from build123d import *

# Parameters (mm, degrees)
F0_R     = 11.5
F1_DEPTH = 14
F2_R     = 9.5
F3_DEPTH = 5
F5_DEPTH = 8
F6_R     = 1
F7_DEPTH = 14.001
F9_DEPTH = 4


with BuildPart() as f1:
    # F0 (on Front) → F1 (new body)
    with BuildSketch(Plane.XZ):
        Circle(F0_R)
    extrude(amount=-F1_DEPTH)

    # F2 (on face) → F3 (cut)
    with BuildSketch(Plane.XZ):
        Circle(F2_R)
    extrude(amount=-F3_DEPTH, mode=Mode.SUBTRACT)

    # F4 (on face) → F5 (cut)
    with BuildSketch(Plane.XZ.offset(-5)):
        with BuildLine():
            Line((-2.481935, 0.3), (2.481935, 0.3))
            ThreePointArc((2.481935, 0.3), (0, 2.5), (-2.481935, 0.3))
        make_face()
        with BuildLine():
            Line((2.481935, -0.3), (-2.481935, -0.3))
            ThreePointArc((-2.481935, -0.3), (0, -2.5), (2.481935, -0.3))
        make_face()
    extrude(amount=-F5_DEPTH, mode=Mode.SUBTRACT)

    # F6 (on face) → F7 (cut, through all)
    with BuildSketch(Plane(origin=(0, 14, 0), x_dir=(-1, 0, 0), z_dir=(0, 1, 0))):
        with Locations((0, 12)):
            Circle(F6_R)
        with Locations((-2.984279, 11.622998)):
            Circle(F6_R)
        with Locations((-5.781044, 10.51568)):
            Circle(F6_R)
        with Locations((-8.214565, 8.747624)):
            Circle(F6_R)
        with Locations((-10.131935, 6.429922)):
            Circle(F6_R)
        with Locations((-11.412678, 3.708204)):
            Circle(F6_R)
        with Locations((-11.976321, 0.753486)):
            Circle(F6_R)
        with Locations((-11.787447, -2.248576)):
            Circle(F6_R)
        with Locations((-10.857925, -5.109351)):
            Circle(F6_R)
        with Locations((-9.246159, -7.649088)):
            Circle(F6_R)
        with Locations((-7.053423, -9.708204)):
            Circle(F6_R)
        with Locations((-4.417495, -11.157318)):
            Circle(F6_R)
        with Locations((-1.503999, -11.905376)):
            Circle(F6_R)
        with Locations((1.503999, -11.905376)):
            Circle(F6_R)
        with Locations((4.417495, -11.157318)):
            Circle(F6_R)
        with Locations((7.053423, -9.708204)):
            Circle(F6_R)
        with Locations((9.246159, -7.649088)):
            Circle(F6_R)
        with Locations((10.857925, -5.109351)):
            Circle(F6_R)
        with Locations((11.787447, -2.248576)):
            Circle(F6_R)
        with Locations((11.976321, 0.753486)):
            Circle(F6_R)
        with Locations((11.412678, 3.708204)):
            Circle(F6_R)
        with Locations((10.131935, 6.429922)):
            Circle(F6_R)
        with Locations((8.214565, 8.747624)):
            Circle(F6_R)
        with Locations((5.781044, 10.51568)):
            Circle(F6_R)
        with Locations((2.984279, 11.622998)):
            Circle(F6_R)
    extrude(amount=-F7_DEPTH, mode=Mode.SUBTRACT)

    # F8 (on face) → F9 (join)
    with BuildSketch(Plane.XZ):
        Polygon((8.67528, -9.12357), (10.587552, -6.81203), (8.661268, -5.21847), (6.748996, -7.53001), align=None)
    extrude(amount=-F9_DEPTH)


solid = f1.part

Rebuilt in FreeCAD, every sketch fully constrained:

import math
import FreeCAD as App
import Part
import Sketcher
from FreeCAD import Vector
Q = App.Units.Quantity


def add_polygon(sketch, points):
    """Adds a closed chain of lines whose ends are joined by coincident constraints."""
    first, n = sketch.GeometryCount, len(points)
    for a, b in zip(points, points[1:] + points[:1]):
        sketch.addGeometry(Part.LineSegment(App.Vector(*a, 0), App.Vector(*b, 0)), False)
    for i in range(n):
        sketch.addConstraint(Sketcher.Constraint("Coincident", first + i, 2, first + (i + 1) % n, 1))

doc = App.newDocument("Part")
body = doc.addObject("PartDesign::Body", "Body")

# Sketch on XZ plane
sketch1 = body.newObject("Sketcher::SketchObject", "Sketch")
sketch1.AttachmentSupport = (doc.getObject("XZ_Plane"), [""])
sketch1.MapMode = "FlatFace"
sketch1.addGeometry(Part.Circle(Vector(0, 0, 0), Vector(0, 0, 1), 12), False)
sketch1.addConstraint([
    Sketcher.Constraint("Coincident", 0, 3, -1, 1),
    Sketcher.Constraint("Diameter", 0, 23.0),
])
pad1 = body.newObject("PartDesign::Pad", "Pad")
pad1.Profile = sketch1
pad1.Length = 14
pad1.Reversed = True

# Sketch on XZ plane
sketch2 = body.newObject("Sketcher::SketchObject", "Sketch001")
sketch2.AttachmentSupport = (doc.getObject("XZ_Plane"), [""])
sketch2.MapMode = "FlatFace"
sketch2.addGeometry(Part.Circle(Vector(0, 0, 0), Vector(0, 0, 1), 10), False)
sketch2.addConstraint([
    Sketcher.Constraint("Coincident", 0, 3, -1, 1),
    Sketcher.Constraint("Diameter", 0, 19.0),
])
pocket1 = body.newObject("PartDesign::Pocket", "Pocket")
pocket1.Profile = sketch2
pocket1.Length = 5

# Sketch on XZ plane
sketch3 = body.newObject("Sketcher::SketchObject", "Sketch002")
sketch3.AttachmentSupport = (doc.getObject("XZ_Plane"), [""])
sketch3.MapMode = "FlatFace"
sketch3.AttachmentOffset = App.Placement(Vector(0, 0, -5), App.Rotation())
sketch3.addGeometry([
    Part.LineSegment(Vector(-2.5, 0.3, 0), Vector(2.5, 0.3, 0)),
    Part.ArcOfCircle(Part.Circle(Vector(0, 0, 0), Vector(0, 0, 1), 2.5), math.radians(7), math.radians(173)),
    Part.LineSegment(Vector(2.5, -0.3, 0), Vector(-2.5, -0.3, 0)),
    Part.ArcOfCircle(Part.Circle(Vector(0, 0, 0), Vector(0, 0, 1), 2.5), math.radians(-173), math.radians(-7)),
], False)
sketch3.addConstraint([
    Sketcher.Constraint("Coincident", 0, 1, 1, 2),
    Sketcher.Constraint("Coincident", 1, 1, 0, 2),
    Sketcher.Constraint("Coincident", 2, 1, 3, 2),
    Sketcher.Constraint("Coincident", 3, 1, 2, 2),
    Sketcher.Constraint("Horizontal", 0),
    Sketcher.Constraint("Horizontal", 2),
    Sketcher.Constraint("Coincident", 1, 3, -1, 1),
    Sketcher.Constraint("Coincident", 3, 3, -1, 1),
    Sketcher.Constraint("Equal", 1, 3),
    Sketcher.Constraint("Vertical", 1, 1, 2, 1),
    Sketcher.Constraint("Radius", 1, 2.5),
    Sketcher.Constraint("DistanceY", -1, 1, 0, 1, 0.3),
])
pocket2 = body.newObject("PartDesign::Pocket", "Pocket001")
pocket2.Profile = sketch3
pocket2.Length = 8

# Sketch on XZ plane
sketch4 = body.newObject("Sketcher::SketchObject", "Sketch003")
sketch4.AttachmentSupport = (doc.getObject("XZ_Plane"), [""])
sketch4.MapMode = "FlatFace"
sketch4.AttachmentOffset = App.Placement(Vector(0, 0, -14), App.Rotation())
sketch4.addGeometry([
    Part.Circle(Vector(0, 12, 0), Vector(0, 0, 1), 1),  # 0
    Part.Circle(Vector(3, 11.6, 0), Vector(0, 0, 1), 1),  # 1
    Part.Circle(Vector(5.8, 10.5, 0), Vector(0, 0, 1), 1),  # 2
    Part.Circle(Vector(8.2, 8.7, 0), Vector(0, 0, 1), 1),  # 3
    Part.Circle(Vector(10.1, 6.4, 0), Vector(0, 0, 1), 1),  # 4
    Part.Circle(Vector(11.4, 3.7, 0), Vector(0, 0, 1), 1),  # 5
    Part.Circle(Vector(12, 0.8, 0), Vector(0, 0, 1), 1),  # 6
    Part.Circle(Vector(11.8, -2.2, 0), Vector(0, 0, 1), 1),  # 7
    Part.Circle(Vector(10.9, -5.1, 0), Vector(0, 0, 1), 1),  # 8
    Part.Circle(Vector(9.2, -7.6, 0), Vector(0, 0, 1), 1),  # 9
    Part.Circle(Vector(7.1, -9.7, 0), Vector(0, 0, 1), 1),  # 10
    Part.Circle(Vector(4.4, -11.2, 0), Vector(0, 0, 1), 1),  # 11
    Part.Circle(Vector(1.5, -11.9, 0), Vector(0, 0, 1), 1),  # 12
    Part.Circle(Vector(-1.5, -11.9, 0), Vector(0, 0, 1), 1),  # 13
    Part.Circle(Vector(-4.4, -11.2, 0), Vector(0, 0, 1), 1),  # 14
    Part.Circle(Vector(-7.1, -9.7, 0), Vector(0, 0, 1), 1),  # 15
    Part.Circle(Vector(-9.2, -7.6, 0), Vector(0, 0, 1), 1),  # 16
    Part.Circle(Vector(-10.9, -5.1, 0), Vector(0, 0, 1), 1),  # 17
    Part.Circle(Vector(-11.8, -2.2, 0), Vector(0, 0, 1), 1),  # 18
    Part.Circle(Vector(-12, 0.8, 0), Vector(0, 0, 1), 1),  # 19
    Part.Circle(Vector(-11.4, 3.7, 0), Vector(0, 0, 1), 1),  # 20
    Part.Circle(Vector(-10.1, 6.4, 0), Vector(0, 0, 1), 1),  # 21
    Part.Circle(Vector(-8.2, 8.7, 0), Vector(0, 0, 1), 1),  # 22
    Part.Circle(Vector(-5.8, 10.5, 0), Vector(0, 0, 1), 1),  # 23
    Part.Circle(Vector(-3, 11.6, 0), Vector(0, 0, 1), 1),  # 24
], False)
sketch4.addConstraint([
    Sketcher.Constraint("Equal", 0, 1),
    Sketcher.Constraint("Equal", 1, 2),
    Sketcher.Constraint("Equal", 2, 3),
    Sketcher.Constraint("Equal", 3, 4),
    Sketcher.Constraint("Equal", 4, 5),
    Sketcher.Constraint("Equal", 5, 6),
    Sketcher.Constraint("Equal", 6, 7),
    Sketcher.Constraint("Equal", 7, 8),
    Sketcher.Constraint("Equal", 8, 9),
    Sketcher.Constraint("Equal", 9, 10),
    Sketcher.Constraint("Equal", 10, 11),
    Sketcher.Constraint("Equal", 11, 12),
    Sketcher.Constraint("Equal", 12, 13),
    Sketcher.Constraint("Equal", 13, 14),
    Sketcher.Constraint("Equal", 14, 15),
    Sketcher.Constraint("Equal", 15, 16),
    Sketcher.Constraint("Equal", 16, 17),
    Sketcher.Constraint("Equal", 17, 18),
    Sketcher.Constraint("Equal", 18, 19),
    Sketcher.Constraint("Equal", 19, 20),
    Sketcher.Constraint("Equal", 20, 21),
    Sketcher.Constraint("Equal", 21, 22),
    Sketcher.Constraint("Equal", 22, 23),
    Sketcher.Constraint("Equal", 23, 24),
    Sketcher.Constraint("Symmetric", 12, 3, 13, 3, -2),
    Sketcher.Constraint("Symmetric", 11, 3, 14, 3, -2),
    Sketcher.Constraint("Symmetric", 10, 3, 15, 3, -2),
    Sketcher.Constraint("Symmetric", 9, 3, 16, 3, -2),
    Sketcher.Constraint("Symmetric", 8, 3, 17, 3, -2),
    Sketcher.Constraint("Symmetric", 7, 3, 18, 3, -2),
    Sketcher.Constraint("Symmetric", 6, 3, 19, 3, -2),
    Sketcher.Constraint("Symmetric", 5, 3, 20, 3, -2),
    Sketcher.Constraint("Symmetric", 4, 3, 21, 3, -2),
    Sketcher.Constraint("Symmetric", 3, 3, 22, 3, -2),
    Sketcher.Constraint("Symmetric", 2, 3, 23, 3, -2),
    Sketcher.Constraint("Symmetric", 1, 3, 24, 3, -2),
    Sketcher.Constraint("PointOnObject", 0, 3, -2),
    Sketcher.Constraint("Diameter", 0, 2.0),
    Sketcher.Constraint("DistanceY", -1, 1, 0, 3, 12.0),
    Sketcher.Constraint("DistanceY", -1, 1, 1, 3, 11.622998),
    Sketcher.Constraint("DistanceX", -1, 1, 12, 3, 1.503999),
    Sketcher.Constraint("DistanceY", 4, 3, 3, 3, 2.317702),
    Sketcher.Constraint("DistanceX", 1, 3, 5, 3, 8.428399),
    Sketcher.Constraint("DistanceY", 7, 3, 4, 3, 8.678498),
    Sketcher.Constraint("DistanceX", 10, 3, 8, 3, 3.804502),
    Sketcher.Constraint("DistanceY", 12, 3, 7, 3, 9.6568),
    Sketcher.Constraint("DistanceX", -1, 1, 1, 3, 2.984279),
    Sketcher.Constraint("DistanceY", -1, 1, 2, 3, 10.51568),
    Sketcher.Constraint("DistanceX", -1, 1, 6, 3, 11.976321),
    Sketcher.Constraint("DistanceY", 8, 3, -1, 1, 5.109351),
    Sketcher.Constraint("DistanceX", -1, 1, 9, 3, 9.246159),
    Sketcher.Constraint("DistanceX", 2, 3, 3, 3, 2.433521),
    Sketcher.Constraint("DistanceX", 3, 3, 4, 3, 1.91737),
    Sketcher.Constraint("DistanceY", 5, 3, 4, 3, 2.721718),
    Sketcher.Constraint("DistanceY", 6, 3, 3, 3, 7.994138),
    Sketcher.Constraint("DistanceX", 5, 3, 7, 3, 0.374769),
    Sketcher.Constraint("DistanceX", 4, 3, 7, 3, 1.655512),
    Sketcher.Constraint("DistanceX", 4, 3, 8, 3, 0.72599),
    Sketcher.Constraint("DistanceY", 9, 3, 5, 3, 11.357292),
    Sketcher.Constraint("DistanceY", 10, 3, 7, 3, 7.459628),
    Sketcher.Constraint("DistanceX", 11, 3, 10, 3, 2.635928),
    Sketcher.Constraint("DistanceY", 11, 3, 9, 3, 3.50823),
    Sketcher.Constraint("DistanceY", -1, 1, 3, 3, 8.747624),
])
pocket3 = body.newObject("PartDesign::Pocket", "Pocket002")
pocket3.Profile = sketch4
pocket3.Type = "ThroughAll"
pocket3.Reversed = True

# Sketch on XZ plane
sketch5 = body.newObject("Sketcher::SketchObject", "Sketch004")
sketch5.AttachmentSupport = (doc.getObject("XZ_Plane"), [""])
sketch5.MapMode = "FlatFace"
add_polygon(sketch5, [(8.7, -9.1), (10.6, -6.8), (8.7, -5.2), (6.7, -7.5)])  # lines 0-3
sketch5.addConstraint([
    Sketcher.Constraint("Perpendicular", 0, 1),
    Sketcher.Constraint("Perpendicular", 1, 2),
    Sketcher.Constraint("Perpendicular", 2, 3),
    Sketcher.Constraint("Distance", 0, 3.0),
    Sketcher.Constraint("Angle", 0, Q("50.400003 deg")),
    Sketcher.Constraint("Distance", 1, 2.500001),
    Sketcher.Constraint("DistanceY", 0, 2, -1, 1, 6.81203),
    Sketcher.Constraint("DistanceX", -1, 1, 3, 2, 8.67528),
])
pad2 = body.newObject("PartDesign::Pad", "Pad001")
pad2.Profile = sketch5
pad2.Length = 4
pad2.Reversed = True

doc.recompute()
